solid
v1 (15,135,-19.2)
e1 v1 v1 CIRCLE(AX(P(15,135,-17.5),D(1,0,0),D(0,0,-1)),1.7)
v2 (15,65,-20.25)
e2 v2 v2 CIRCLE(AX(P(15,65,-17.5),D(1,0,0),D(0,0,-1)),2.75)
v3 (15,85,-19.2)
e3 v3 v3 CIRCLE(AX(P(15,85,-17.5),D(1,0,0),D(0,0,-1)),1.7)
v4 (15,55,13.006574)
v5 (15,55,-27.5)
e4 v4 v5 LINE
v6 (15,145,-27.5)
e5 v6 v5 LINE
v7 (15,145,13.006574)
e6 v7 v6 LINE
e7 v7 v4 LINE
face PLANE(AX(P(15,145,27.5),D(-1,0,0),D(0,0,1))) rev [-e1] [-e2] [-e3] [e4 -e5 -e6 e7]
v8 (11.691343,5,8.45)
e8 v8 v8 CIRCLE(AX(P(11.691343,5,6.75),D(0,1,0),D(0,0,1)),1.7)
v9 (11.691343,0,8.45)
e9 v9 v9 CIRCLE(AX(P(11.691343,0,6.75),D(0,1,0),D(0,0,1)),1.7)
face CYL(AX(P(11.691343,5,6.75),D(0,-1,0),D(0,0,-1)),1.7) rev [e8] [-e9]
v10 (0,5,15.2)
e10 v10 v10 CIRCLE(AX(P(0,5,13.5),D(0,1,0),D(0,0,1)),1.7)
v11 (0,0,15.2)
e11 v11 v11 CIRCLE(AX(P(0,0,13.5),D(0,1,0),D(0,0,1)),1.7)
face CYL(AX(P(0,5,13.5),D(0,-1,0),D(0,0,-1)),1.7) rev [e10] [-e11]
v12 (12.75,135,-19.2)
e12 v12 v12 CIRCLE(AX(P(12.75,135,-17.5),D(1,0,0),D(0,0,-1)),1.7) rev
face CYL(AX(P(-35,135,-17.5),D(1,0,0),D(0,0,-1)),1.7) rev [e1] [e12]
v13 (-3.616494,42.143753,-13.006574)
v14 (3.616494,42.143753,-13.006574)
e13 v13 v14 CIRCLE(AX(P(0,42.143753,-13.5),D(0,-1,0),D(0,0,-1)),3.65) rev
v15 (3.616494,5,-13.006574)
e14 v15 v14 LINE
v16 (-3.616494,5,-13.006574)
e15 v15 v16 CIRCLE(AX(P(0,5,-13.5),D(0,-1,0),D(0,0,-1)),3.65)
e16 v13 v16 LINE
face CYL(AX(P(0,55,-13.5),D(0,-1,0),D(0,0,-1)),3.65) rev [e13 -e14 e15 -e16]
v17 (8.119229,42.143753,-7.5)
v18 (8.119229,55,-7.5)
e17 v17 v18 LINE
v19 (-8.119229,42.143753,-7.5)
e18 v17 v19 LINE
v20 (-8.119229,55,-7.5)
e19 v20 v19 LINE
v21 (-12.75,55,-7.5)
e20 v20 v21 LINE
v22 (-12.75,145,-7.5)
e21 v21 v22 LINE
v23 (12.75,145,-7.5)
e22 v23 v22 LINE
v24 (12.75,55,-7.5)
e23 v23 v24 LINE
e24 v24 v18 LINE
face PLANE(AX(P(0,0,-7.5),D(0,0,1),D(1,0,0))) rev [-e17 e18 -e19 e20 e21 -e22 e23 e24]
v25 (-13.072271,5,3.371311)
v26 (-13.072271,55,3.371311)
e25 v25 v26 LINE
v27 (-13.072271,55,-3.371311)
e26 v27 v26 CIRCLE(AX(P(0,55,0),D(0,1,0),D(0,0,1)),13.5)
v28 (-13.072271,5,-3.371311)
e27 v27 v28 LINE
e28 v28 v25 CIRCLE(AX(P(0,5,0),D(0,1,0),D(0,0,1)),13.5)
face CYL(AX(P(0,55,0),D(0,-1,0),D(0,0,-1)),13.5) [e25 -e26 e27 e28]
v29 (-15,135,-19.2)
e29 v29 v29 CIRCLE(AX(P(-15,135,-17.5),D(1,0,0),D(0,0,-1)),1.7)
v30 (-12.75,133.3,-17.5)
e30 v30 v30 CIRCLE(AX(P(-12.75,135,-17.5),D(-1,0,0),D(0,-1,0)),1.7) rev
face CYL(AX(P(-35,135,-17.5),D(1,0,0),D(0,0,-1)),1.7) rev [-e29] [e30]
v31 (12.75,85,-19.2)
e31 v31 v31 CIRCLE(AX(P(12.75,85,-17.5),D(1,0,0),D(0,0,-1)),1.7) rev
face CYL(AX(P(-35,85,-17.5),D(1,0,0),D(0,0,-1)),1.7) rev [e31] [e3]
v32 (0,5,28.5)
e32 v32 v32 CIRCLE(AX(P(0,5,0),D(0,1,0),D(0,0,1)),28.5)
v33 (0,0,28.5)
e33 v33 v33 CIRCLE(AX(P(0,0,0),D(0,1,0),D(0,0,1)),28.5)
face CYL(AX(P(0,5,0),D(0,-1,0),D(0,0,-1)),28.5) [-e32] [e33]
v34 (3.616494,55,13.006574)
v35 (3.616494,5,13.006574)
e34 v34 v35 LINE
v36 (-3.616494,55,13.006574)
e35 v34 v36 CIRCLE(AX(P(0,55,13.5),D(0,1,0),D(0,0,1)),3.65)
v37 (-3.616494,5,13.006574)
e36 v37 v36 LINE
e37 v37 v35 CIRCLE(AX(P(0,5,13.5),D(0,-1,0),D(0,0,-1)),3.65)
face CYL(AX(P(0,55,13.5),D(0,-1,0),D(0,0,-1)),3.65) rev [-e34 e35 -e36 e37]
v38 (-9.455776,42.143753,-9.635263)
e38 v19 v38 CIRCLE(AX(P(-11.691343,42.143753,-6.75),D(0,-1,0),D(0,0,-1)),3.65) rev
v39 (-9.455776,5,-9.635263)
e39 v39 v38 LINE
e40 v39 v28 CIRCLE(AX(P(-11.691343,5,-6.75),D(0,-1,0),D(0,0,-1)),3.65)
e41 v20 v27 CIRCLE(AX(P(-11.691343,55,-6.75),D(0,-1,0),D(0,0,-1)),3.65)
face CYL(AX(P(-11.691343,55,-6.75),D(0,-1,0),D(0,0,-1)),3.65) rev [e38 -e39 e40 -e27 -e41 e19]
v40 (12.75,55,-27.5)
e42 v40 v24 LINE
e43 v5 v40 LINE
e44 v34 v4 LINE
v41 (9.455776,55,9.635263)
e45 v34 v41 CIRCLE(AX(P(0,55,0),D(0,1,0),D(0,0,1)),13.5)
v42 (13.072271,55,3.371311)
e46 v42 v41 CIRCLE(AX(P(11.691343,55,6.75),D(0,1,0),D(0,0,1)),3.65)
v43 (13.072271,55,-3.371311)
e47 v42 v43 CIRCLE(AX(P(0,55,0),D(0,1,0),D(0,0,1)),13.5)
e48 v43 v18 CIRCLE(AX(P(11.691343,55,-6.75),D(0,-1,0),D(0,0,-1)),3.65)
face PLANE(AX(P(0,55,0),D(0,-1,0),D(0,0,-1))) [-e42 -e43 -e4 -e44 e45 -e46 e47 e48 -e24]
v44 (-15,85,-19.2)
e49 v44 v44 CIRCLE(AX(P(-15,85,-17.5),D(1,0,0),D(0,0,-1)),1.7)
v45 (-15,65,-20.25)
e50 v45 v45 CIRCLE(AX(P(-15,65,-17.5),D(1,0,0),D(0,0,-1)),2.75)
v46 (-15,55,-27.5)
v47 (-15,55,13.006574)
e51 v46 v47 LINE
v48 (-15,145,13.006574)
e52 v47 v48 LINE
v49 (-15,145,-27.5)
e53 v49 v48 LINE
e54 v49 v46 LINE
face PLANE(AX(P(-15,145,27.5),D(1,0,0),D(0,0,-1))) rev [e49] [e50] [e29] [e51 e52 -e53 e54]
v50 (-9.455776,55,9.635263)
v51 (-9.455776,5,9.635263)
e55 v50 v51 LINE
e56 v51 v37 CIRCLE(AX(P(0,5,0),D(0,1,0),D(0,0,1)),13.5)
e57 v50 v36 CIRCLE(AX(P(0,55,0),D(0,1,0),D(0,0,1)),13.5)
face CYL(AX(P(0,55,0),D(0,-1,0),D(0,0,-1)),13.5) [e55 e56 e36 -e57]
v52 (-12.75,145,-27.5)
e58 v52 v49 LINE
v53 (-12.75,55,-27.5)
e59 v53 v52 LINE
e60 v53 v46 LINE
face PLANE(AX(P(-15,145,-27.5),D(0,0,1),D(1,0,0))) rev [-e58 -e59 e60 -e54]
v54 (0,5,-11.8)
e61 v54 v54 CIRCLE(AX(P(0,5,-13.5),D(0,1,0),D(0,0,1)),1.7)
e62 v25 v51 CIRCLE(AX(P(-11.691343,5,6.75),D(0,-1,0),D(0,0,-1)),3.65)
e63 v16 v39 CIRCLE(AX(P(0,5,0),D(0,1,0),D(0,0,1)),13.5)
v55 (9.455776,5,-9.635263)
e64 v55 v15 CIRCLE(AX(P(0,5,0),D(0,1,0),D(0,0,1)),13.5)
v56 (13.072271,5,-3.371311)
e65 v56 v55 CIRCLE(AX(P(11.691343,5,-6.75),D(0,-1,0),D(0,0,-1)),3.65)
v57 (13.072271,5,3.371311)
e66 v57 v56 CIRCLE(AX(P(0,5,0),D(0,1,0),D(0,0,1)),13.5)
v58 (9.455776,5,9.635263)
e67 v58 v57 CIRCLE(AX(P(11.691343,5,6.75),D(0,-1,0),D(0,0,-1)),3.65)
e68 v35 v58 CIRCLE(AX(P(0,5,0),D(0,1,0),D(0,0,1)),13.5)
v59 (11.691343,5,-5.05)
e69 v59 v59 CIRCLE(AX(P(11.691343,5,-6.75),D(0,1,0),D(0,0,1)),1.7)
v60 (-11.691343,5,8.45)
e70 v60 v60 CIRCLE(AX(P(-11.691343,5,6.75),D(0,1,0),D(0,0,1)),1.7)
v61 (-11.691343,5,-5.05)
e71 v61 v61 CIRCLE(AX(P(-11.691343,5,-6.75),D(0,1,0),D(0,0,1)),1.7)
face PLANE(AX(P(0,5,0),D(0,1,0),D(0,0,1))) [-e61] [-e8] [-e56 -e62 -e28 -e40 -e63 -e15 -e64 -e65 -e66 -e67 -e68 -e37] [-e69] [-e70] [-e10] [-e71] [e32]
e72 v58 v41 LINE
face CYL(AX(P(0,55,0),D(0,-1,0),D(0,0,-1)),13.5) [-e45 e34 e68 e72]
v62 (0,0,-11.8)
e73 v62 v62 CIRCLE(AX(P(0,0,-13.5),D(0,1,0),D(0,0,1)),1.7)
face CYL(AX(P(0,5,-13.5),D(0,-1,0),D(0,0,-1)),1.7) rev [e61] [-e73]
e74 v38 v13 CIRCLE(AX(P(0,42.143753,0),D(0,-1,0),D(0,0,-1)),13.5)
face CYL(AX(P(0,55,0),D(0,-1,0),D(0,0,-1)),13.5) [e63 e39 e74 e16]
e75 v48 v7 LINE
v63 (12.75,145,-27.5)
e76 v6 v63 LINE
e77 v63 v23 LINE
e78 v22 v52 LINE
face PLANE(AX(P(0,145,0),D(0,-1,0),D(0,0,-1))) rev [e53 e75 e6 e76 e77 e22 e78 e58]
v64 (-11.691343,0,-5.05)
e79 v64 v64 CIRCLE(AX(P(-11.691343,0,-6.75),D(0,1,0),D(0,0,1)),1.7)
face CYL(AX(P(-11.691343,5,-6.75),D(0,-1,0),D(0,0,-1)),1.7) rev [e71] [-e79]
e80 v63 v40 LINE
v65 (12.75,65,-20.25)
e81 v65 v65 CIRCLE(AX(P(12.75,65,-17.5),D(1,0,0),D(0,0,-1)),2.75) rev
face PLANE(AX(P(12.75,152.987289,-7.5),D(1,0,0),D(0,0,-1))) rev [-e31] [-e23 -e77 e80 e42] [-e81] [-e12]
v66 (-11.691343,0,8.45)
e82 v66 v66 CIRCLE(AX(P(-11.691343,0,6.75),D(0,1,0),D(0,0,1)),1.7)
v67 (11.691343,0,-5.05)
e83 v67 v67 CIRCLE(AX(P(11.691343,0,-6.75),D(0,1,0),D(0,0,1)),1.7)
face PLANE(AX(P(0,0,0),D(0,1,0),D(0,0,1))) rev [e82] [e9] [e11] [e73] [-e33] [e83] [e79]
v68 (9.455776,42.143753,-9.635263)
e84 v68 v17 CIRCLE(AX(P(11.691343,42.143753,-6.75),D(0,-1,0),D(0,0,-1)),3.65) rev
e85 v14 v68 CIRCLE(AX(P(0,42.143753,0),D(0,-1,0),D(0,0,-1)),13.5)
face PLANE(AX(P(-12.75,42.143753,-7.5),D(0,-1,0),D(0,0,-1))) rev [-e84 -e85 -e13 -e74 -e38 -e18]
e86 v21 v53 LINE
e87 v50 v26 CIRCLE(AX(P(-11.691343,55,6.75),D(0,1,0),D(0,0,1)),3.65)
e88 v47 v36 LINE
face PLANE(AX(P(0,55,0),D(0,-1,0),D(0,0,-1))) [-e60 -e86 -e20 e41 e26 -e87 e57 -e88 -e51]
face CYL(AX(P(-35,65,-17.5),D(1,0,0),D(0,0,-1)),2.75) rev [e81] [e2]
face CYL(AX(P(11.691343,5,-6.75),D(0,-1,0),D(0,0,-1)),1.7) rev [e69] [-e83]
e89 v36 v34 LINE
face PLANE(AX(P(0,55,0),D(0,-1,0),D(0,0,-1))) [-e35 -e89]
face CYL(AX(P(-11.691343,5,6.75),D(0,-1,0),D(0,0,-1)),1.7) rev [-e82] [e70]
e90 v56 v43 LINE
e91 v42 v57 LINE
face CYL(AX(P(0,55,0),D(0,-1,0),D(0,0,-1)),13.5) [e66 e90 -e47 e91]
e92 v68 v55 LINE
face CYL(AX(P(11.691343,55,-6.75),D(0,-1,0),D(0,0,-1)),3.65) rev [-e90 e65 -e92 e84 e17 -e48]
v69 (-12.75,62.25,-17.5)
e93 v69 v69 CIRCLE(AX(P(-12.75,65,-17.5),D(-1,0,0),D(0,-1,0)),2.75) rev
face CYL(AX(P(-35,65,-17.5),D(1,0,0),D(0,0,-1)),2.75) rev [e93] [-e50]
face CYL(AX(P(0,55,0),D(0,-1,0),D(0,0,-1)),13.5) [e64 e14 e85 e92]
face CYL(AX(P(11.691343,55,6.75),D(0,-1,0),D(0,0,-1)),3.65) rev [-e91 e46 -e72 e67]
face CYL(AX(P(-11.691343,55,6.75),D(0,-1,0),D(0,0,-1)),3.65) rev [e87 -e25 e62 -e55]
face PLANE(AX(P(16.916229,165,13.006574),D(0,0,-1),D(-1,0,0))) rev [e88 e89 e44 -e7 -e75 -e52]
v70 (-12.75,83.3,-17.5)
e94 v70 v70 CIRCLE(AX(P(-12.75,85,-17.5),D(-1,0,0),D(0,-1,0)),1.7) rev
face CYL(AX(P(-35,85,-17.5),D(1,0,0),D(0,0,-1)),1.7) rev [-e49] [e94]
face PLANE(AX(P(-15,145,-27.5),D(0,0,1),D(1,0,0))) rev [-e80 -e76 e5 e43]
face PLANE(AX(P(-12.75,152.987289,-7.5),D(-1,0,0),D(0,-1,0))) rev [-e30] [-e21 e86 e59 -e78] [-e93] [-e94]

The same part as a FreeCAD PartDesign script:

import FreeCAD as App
import Part
import Sketcher
from FreeCAD import Vector
Q = App.Units.Quantity

doc = App.newDocument("Part")
body = doc.addObject("PartDesign::Body", "Body")

sketch1 = body.newObject("Sketcher::SketchObject", "Sketch")
sketch1.AttachmentSupport = (doc.getObject("XZ_Plane"), [""])
sketch1.MapMode = "FlatFace"
sketch1.addGeometry(Part.Circle(Vector(0, 0, 0), Vector(0, 0, 1), 28.5), False)
sketch1.addGeometry(Part.Circle(Vector(-11.7, 6.8, 0), Vector(0, 0, 1), 1.7), False)
sketch1.addGeometry(Part.Circle(Vector(0, 13.5, 0), Vector(0, 0, 1), 1.7), False)
sketch1.addGeometry(Part.Circle(Vector(11.7, 6.8, 0), Vector(0, 0, 1), 1.7), False)
sketch1.addGeometry(Part.Circle(Vector(-11.7, -6.8, 0), Vector(0, 0, 1), 1.7), False)
sketch1.addGeometry(Part.Circle(Vector(11.7, -6.8, 0), Vector(0, 0, 1), 1.7), False)
sketch1.addGeometry(Part.Circle(Vector(0, -13.5, 0), Vector(0, 0, 1), 1.7), False)
sketch1.addConstraint(Sketcher.Constraint("Coincident", 0, 3, -1, 1))
sketch1.addConstraint(Sketcher.Constraint("Equal", 1, 2))
sketch1.addConstraint(Sketcher.Constraint("Equal", 2, 3))
sketch1.addConstraint(Sketcher.Constraint("Equal", 3, 4))
sketch1.addConstraint(Sketcher.Constraint("Equal", 4, 5))
sketch1.addConstraint(Sketcher.Constraint("Equal", 5, 6))
sketch1.addConstraint(Sketcher.Constraint("Symmetric", 3, 3, 4, 3, -1, 1))
sketch1.addConstraint(Sketcher.Constraint("Symmetric", 1, 3, 5, 3, -1, 1))
sketch1.addConstraint(Sketcher.Constraint("Symmetric", 2, 3, 6, 3, -1, 1))
sketch1.addConstraint(Sketcher.Constraint("Symmetric", 1, 3, 3, 3, -2))
sketch1.addConstraint(Sketcher.Constraint("PointOnObject", 2, 3, -2))
sketch1.addConstraint(Sketcher.Constraint("Diameter", 0, Q("57 mm")))
sketch1.addConstraint(Sketcher.Constraint("Diameter", 1, Q("3.4 mm")))
sketch1.addConstraint(Sketcher.Constraint("DistanceY", -1, 1, 2, 3, Q("13.5 mm")))
sketch1.addConstraint(Sketcher.Constraint("DistanceY", 4, 3, 1, 3, Q("13.5 mm")))
sketch1.addConstraint(Sketcher.Constraint("DistanceX", 1, 3, -1, 1, Q("11.691343 mm")))
pad1 = body.newObject("PartDesign::Pad", "Pad")
pad1.Profile = sketch1
pad1.Length = 5
pad1.Reversed = True

sketch2 = body.newObject("Sketcher::SketchObject", "Sketch001")
sketch2.AttachmentSupport = (doc.getObject("XZ_Plane"), [""])
sketch2.MapMode = "FlatFace"
sketch2.AttachmentOffset = App.Placement(Vector(0, 0, -5), App.Rotation())
sketch2.addGeometry(Part.Circle(Vector(0, 0, 0), Vector(0, 0, 1), 14), False)
sketch2.addConstraint(Sketcher.Constraint("Coincident", 0, 3, -1, 1))
sketch2.addConstraint(Sketcher.Constraint("Diameter", 0, Q("27 mm")))
pad2 = body.newObject("PartDesign::Pad", "Pad001")
pad2.Profile = sketch2
pad2.Length = 50
pad2.Reversed = True

sketch3 = body.newObject("Sketcher::SketchObject", "Sketch002")
sketch3.AttachmentSupport = (doc.getObject("XZ_Plane"), [""])
sketch3.MapMode = "FlatFace"
sketch3.AttachmentOffset = App.Placement(Vector(0, 0, -5), App.Rotation())
sketch3.addGeometry(Part.Circle(Vector(-11.7, -6.8, 0), Vector(0, 0, 1), 3.6), False)
sketch3.addGeometry(Part.Circle(Vector(-11.7, 6.8, 0), Vector(0, 0, 1), 3.6), False)
sketch3.addGeometry(Part.Circle(Vector(0, 13.5, 0), Vector(0, 0, 1), 3.6), False)
sketch3.addGeometry(Part.Circle(Vector(11.7, 6.8, 0), Vector(0, 0, 1), 3.6), False)
sketch3.addGeometry(Part.Circle(Vector(11.7, -6.8, 0), Vector(0, 0, 1), 3.6), False)
sketch3.addGeometry(Part.Circle(Vector(0, -13.5, 0), Vector(0, 0, 1), 3.6), False)
sketch3.addConstraint(Sketcher.Constraint("Equal", 0, 1))
sketch3.addConstraint(Sketcher.Constraint("Equal", 1, 2))
sketch3.addConstraint(Sketcher.Constraint("Equal", 2, 3))
sketch3.addConstraint(Sketcher.Constraint("Equal", 3, 4))
sketch3.addConstraint(Sketcher.Constraint("Equal", 4, 5))
sketch3.addConstraint(Sketcher.Constraint("Symmetric", 0, 3, 3, 3, -1, 1))
sketch3.addConstraint(Sketcher.Constraint("Symmetric", 1, 3, 4, 3, -1, 1))
sketch3.addConstraint(Sketcher.Constraint("Symmetric", 2, 3, 5, 3, -1, 1))
sketch3.addConstraint(Sketcher.Constraint("Symmetric", 1, 3, 3, 3, -2))
sketch3.addConstraint(Sketcher.Constraint("PointOnObject", 2, 3, -2))
sketch3.addConstraint(Sketcher.Constraint("Diameter", 0, Q("7.3 mm")))
sketch3.addConstraint(Sketcher.Constraint("DistanceY", 5, 3, 2, 3, Q("27 mm")))
sketch3.addConstraint(Sketcher.Constraint("DistanceY", 0, 3, 1, 3, Q("13.5 mm")))
sketch3.addConstraint(Sketcher.Constraint("DistanceX", 0, 3, -1, 1, Q("11.691343 mm")))
pocket1 = body.newObject("PartDesign::Pocket", "Pocket")
pocket1.Profile = sketch3
pocket1.Length = 50

sketch4 = body.newObject("Sketcher::SketchObject", "Sketch003")
sketch4.AttachmentSupport = (doc.getObject("XZ_Plane"), [""])
sketch4.MapMode = "FlatFace"
sketch4.AttachmentOffset = App.Placement(Vector(0, 0, -55), App.Rotation())
sketch4.addGeometry(Part.LineSegment(Vector(-15, -28, 0), Vector(-15, 28, 0)), False)
sketch4.addGeometry(Part.LineSegment(Vector(-15, 28, 0), Vector(15, 28, 0)), False)
sketch4.addGeometry(Part.LineSegment(Vector(15, 28, 0), Vector(15, -28, 0)), False)
sketch4.addGeometry(Part.LineSegment(Vector(15, -28, 0), Vector(-15, -28, 0)), False)
sketch4.addConstraint(Sketcher.Constraint("Coincident", 0, 2, 1, 1))
sketch4.addConstraint(Sketcher.Constraint("Coincident", 1, 2, 2, 1))
sketch4.addConstraint(Sketcher.Constraint("Coincident", 2, 2, 3, 1))
sketch4.addConstraint(Sketcher.Constraint("Coincident", 3, 2, 0, 1))
sketch4.addConstraint(Sketcher.Constraint("Vertical", 0))
sketch4.addConstraint(Sketcher.Constraint("Horizontal", 1))
sketch4.addConstraint(Sketcher.Constraint("Vertical", 2))
sketch4.addConstraint(Sketcher.Constraint("Horizontal", 3))
sketch4.addConstraint(Sketcher.Constraint("Symmetric", 0, 2, 2, 2, -1, 1))
sketch4.addConstraint(Sketcher.Constraint("DistanceX", 1, 1, 1, 2, Q("30 mm")))
sketch4.addConstraint(Sketcher.Constraint("DistanceY", 0, 1, 0, 2, Q("55 mm")))
pad3 = body.newObject("PartDesign::Pad", "Pad002")
pad3.Profile = sketch4
pad3.Length = 90
pad3.Reversed = True

sketch5 = body.newObject("Sketcher::SketchObject", "Sketch004")
sketch5.AttachmentSupport = (doc.getObject("YZ_Plane"), [""])
sketch5.MapMode = "FlatFace"
sketch5.AttachmentOffset = App.Placement(Vector(0, 0, 15), App.Rotation())
sketch5.addGeometry(Part.Circle(Vector(85, -17.5, 0), Vector(0, 0, 1), 1.7), False)
sketch5.addGeometry(Part.Circle(Vector(135, -17.5, 0), Vector(0, 0, 1), 1.7), False)
sketch5.addGeometry(Part.Circle(Vector(65, -17.5, 0), Vector(0, 0, 1), 2.8), False)
sketch5.addConstraint(Sketcher.Constraint("Equal", 0, 1))
sketch5.addConstraint(Sketcher.Constraint("Horizontal", 0, 3, 1, 3))
sketch5.addConstraint(Sketcher.Constraint("Horizontal", 1, 3, 2, 3))
sketch5.addConstraint(Sketcher.Constraint("Diameter", 0, Q("3.4 mm")))
sketch5.addConstraint(Sketcher.Constraint("Diameter", 2, Q("5.5 mm")))
sketch5.addConstraint(Sketcher.Constraint("DistanceX", -1, 1, 0, 3, Q("85 mm")))
sketch5.addConstraint(Sketcher.Constraint("DistanceX", -1, 1, 1, 3, Q("135 mm")))
sketch5.addConstraint(Sketcher.Constraint("DistanceX", -1, 1, 2, 3, Q("65 mm")))
sketch5.addConstraint(Sketcher.Constraint("DistanceY", 0, 3, -1, 1, Q("17.5 mm")))
pocket2 = body.newObject("PartDesign::Pocket", "Pocket001")
pocket2.Profile = sketch5
pocket2.Length = 50

sketch6 = body.newObject("Sketcher::SketchObject", "Sketch005")
sketch6.AttachmentSupport = (doc.getObject("XY_Plane"), [""])
sketch6.MapMode = "FlatFace"
sketch6.AttachmentOffset = App.Placement(Vector(0, 0, -27.5), App.Rotation())
sketch6.addGeometry(Part.LineSegment(Vector(13, 153, 0), Vector(13, 42, 0)), False)
sketch6.addGeometry(Part.LineSegment(Vector(13, 42, 0), Vector(-13, 42, 0)), False)
sketch6.addGeometry(Part.LineSegment(Vector(-13, 42, 0), Vector(-13, 153, 0)), False)
sketch6.addGeometry(Part.LineSegment(Vector(-13, 153, 0), Vector(13, 153, 0)), False)
sketch6.addConstraint(Sketcher.Constraint("Coincident", 0, 2, 1, 1))
sketch6.addConstraint(Sketcher.Constraint("Coincident", 1, 2, 2, 1))
sketch6.addConstraint(Sketcher.Constraint("Coincident", 2, 2, 3, 1))
sketch6.addConstraint(Sketcher.Constraint("Coincident", 3, 2, 0, 1))
sketch6.addConstraint(Sketcher.Constraint("Vertical", 0))
sketch6.addConstraint(Sketcher.Constraint("Horizontal", 1))
sketch6.addConstraint(Sketcher.Constraint("Vertical", 2))
sketch6.addConstraint(Sketcher.Constraint("Horizontal", 3))
sketch6.addConstraint(Sketcher.Constraint("DistanceX", 1, 2, 1, 1, Q("25.5 mm")))
sketch6.addConstraint(Sketcher.Constraint("DistanceX", -1, 1, 0, 2, Q("12.75 mm")))
sketch6.addConstraint(Sketcher.Constraint("DistanceY", 0, 2, 0, 1, Q("110.843537 mm")))
sketch6.addConstraint(Sketcher.Constraint("DistanceY", -1, 1, 2, 2, Q("152.987289 mm")))
pocket3 = body.newObject("PartDesign::Pocket", "Pocket002")
pocket3.Profile = sketch6
pocket3.Length = 20
pocket3.Reversed = True

sketch7 = body.newObject("Sketcher::SketchObject", "Sketch006")
sketch7.AttachmentSupport = (doc.getObject("XZ_Plane"), [""])
sketch7.MapMode = "FlatFace"
sketch7.AttachmentOffset = App.Placement(Vector(0, 0, -55), App.Rotation())
sketch7.addGeometry(Part.LineSegment(Vector(-20, 32, 0), Vector(-20, 13, 0)), False)
sketch7.addGeometry(Part.LineSegment(Vector(-20, 13, 0), Vector(17, 13, 0)), False)
sketch7.addGeometry(Part.LineSegment(Vector(17, 13, 0), Vector(17, 32, 0)), False)
sketch7.addGeometry(Part.LineSegment(Vector(17, 32, 0), Vector(-20, 32, 0)), False)
sketch7.addConstraint(Sketcher.Constraint("Coincident", 0, 2, 1, 1))
sketch7.addConstraint(Sketcher.Constraint("Coincident", 1, 2, 2, 1))
sketch7.addConstraint(Sketcher.Constraint("Coincident", 2, 2, 3, 1))
sketch7.addConstraint(Sketcher.Constraint("Coincident", 3, 2, 0, 1))
sketch7.addConstraint(Sketcher.Constraint("Vertical", 0))
sketch7.addConstraint(Sketcher.Constraint("Horizontal", 1))
sketch7.addConstraint(Sketcher.Constraint("Vertical", 2))
sketch7.addConstraint(Sketcher.Constraint("Horizontal", 3))
sketch7.addConstraint(Sketcher.Constraint("DistanceX", 1, 1, 1, 2, Q("36.709661 mm")))
sketch7.addConstraint(Sketcher.Constraint("DistanceY", 0, 2, 0, 1, Q("18.654829 mm")))
sketch7.addConstraint(Sketcher.Constraint("DistanceX", 0, 2, -1, 1, Q("19.793431 mm")))
sketch7.addConstraint(Sketcher.Constraint("DistanceY", -1, 1, 0, 2, Q("13.006574 mm")))
pocket4 = body.newObject("PartDesign::Pocket", "Pocket003")
pocket4.Profile = sketch7
pocket4.Length = 110

doc.recompute()
